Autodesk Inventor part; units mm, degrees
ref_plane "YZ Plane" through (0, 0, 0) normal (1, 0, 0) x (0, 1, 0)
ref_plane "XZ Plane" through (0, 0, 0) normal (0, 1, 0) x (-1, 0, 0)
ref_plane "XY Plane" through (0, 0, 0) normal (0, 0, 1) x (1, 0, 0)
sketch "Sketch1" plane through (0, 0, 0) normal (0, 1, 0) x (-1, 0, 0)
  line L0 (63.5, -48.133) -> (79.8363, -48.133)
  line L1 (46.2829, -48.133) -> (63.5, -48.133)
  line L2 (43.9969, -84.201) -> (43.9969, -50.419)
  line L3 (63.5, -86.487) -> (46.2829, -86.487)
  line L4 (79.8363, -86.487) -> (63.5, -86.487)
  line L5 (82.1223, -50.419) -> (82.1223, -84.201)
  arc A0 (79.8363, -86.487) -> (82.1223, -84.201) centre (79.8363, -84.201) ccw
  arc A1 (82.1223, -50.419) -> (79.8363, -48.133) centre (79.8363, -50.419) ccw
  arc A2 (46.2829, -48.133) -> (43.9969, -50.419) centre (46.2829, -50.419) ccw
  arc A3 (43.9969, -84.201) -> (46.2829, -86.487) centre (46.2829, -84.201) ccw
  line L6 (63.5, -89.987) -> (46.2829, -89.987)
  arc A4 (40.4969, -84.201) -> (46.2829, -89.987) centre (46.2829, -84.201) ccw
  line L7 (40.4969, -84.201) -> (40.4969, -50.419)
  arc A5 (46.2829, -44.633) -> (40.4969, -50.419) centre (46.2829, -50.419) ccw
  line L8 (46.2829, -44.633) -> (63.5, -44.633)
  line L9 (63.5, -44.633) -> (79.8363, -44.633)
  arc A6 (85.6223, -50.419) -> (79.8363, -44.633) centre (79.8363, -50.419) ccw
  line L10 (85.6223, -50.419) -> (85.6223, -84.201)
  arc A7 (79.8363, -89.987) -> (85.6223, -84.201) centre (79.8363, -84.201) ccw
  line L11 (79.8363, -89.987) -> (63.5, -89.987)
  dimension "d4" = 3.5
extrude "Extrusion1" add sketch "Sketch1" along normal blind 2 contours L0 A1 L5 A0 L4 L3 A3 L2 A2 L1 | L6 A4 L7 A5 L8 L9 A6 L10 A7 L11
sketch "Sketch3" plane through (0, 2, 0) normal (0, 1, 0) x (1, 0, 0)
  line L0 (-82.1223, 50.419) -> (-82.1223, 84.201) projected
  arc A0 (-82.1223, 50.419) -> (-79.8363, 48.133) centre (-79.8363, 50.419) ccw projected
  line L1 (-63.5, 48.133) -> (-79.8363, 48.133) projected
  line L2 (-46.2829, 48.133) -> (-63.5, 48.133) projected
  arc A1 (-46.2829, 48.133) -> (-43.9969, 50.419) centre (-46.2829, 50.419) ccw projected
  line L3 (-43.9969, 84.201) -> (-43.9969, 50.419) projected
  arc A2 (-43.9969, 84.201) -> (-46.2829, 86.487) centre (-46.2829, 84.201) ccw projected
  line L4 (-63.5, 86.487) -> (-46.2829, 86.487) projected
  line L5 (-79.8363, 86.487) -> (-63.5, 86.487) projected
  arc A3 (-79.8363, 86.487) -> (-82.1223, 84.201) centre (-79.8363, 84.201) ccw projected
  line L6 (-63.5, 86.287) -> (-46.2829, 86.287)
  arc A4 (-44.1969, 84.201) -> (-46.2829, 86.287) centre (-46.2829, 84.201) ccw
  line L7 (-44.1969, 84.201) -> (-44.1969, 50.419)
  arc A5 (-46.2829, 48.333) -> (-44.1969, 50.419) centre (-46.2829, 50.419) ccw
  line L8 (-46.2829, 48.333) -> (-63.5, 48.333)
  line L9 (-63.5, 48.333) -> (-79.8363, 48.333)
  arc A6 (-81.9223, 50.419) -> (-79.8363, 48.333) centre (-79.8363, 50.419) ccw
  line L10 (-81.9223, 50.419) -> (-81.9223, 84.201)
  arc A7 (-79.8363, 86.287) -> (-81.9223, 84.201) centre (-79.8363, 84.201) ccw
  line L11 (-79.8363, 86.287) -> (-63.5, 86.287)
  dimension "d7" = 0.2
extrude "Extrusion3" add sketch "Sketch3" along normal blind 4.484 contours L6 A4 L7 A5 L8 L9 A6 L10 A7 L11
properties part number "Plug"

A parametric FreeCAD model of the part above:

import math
import FreeCAD as App
import Part
import Sketcher
Q = App.Units.Quantity

doc = App.newDocument("Part")
body = doc.addObject("PartDesign::Body", "Body")

# Sketch on XZ plane
sketch1 = doc.addObject("Sketcher::SketchObject", "Sketch")
body.addObject(sketch1)
sketch1.AttachmentSupport = (doc.XZ_Plane, [""])
sketch1.MapMode = "FlatFace"
sketch1.addGeometry([
    Part.LineSegment(App.Vector(-46, -90, 0), App.Vector(-80, -90, 0)),  # 0
    Part.ArcOfCircle(Part.Circle(App.Vector(-80, -84, 0), App.Vector(0, 0, 1), 6), math.radians(180), math.radians(270)),  # 1
    Part.LineSegment(App.Vector(-86, -84, 0), App.Vector(-86, -50, 0)),  # 2
    Part.ArcOfCircle(Part.Circle(App.Vector(-80, -50, 0), App.Vector(0, 0, 1), 6), math.radians(90), math.radians(180)),  # 3
    Part.LineSegment(App.Vector(-80, -45, 0), App.Vector(-46, -45, 0)),  # 4
    Part.ArcOfCircle(Part.Circle(App.Vector(-46, -50, 0), App.Vector(0, 0, 1), 6), math.radians(0), math.radians(90)),  # 5
    Part.LineSegment(App.Vector(-40, -50, 0), App.Vector(-40, -84, 0)),  # 6
    Part.ArcOfCircle(Part.Circle(App.Vector(-46, -84, 0), App.Vector(0, 0, 1), 6), math.radians(-90), math.radians(0)),  # 7
], False)
sketch1.addConstraint([
    Sketcher.Constraint("Tangent", 0, 2, 1, 2),
    Sketcher.Constraint("Tangent", 1, 1, 2, 1),
    Sketcher.Constraint("Tangent", 2, 2, 3, 2),
    Sketcher.Constraint("Tangent", 3, 1, 4, 1),
    Sketcher.Constraint("Tangent", 4, 2, 5, 2),
    Sketcher.Constraint("Tangent", 5, 1, 6, 1),
    Sketcher.Constraint("Tangent", 6, 2, 7, 2),
    Sketcher.Constraint("Tangent", 7, 1, 0, 1),
    Sketcher.Constraint("Horizontal", 0),
    Sketcher.Constraint("Vertical", 2),
    Sketcher.Constraint("Horizontal", 4),
    Sketcher.Constraint("Vertical", 6),
    Sketcher.Constraint("Equal", 1, 3),
    Sketcher.Constraint("Equal", 3, 5),
    Sketcher.Constraint("Equal", 5, 7),
    Sketcher.Constraint("DistanceY", 2, 1, 2, 2, Q("1.33 in")),
    Sketcher.Constraint("Radius", 1, Q("0.2278 in")),
    Sketcher.Constraint("DistanceX", 0, 2, 0, 1, Q("1.321 in")),
    Sketcher.Constraint("DistanceY", 1, 3, -1, 1, Q("3.315 in")),
    Sketcher.Constraint("DistanceX", 1, 3, -1, 1, 79.8363),
])
pad1 = doc.addObject("PartDesign::Pad", "Pad")
body.addObject(pad1)
pad1.Profile = sketch1
pad1.Length = 2
pad1.Reversed = True

# Sketch on XZ plane
sketch2 = doc.addObject("Sketcher::SketchObject", "Sketch001")
body.addObject(sketch2)
sketch2.AttachmentSupport = (doc.XZ_Plane, [""])
sketch2.MapMode = "FlatFace"
sketch2.AttachmentOffset = App.Placement(App.Vector(0, 0, -2), App.Rotation())
sketch2.addGeometry([
    Part.LineSegment(App.Vector(-46.3, -86.3, 0), App.Vector(-79.8, -86.3, 0)),  # 0
    Part.ArcOfCircle(Part.Circle(App.Vector(-79.8, -84.2, 0), App.Vector(0, 0, 1), 2.1), math.radians(180), math.radians(270)),  # 1
    Part.LineSegment(App.Vector(-81.9, -84.2, 0), App.Vector(-81.9, -50.4, 0)),  # 2
    Part.ArcOfCircle(Part.Circle(App.Vector(-79.8, -50.4, 0), App.Vector(0, 0, 1), 2.1), math.radians(90), math.radians(180)),  # 3
    Part.LineSegment(App.Vector(-79.8, -48.3, 0), App.Vector(-46.3, -48.3, 0)),  # 4
    Part.ArcOfCircle(Part.Circle(App.Vector(-46.3, -50.4, 0), App.Vector(0, 0, 1), 2.1), math.radians(0), math.radians(90)),  # 5
    Part.LineSegment(App.Vector(-44.2, -50.4, 0), App.Vector(-44.2, -84.2, 0)),  # 6
    Part.ArcOfCircle(Part.Circle(App.Vector(-46.3, -84.2, 0), App.Vector(0, 0, 1), 2.1), math.radians(-90), math.radians(0)),  # 7
], False)
sketch2.addConstraint([
    Sketcher.Constraint("Tangent", 0, 2, 1, 2),
    Sketcher.Constraint("Tangent", 1, 1, 2, 1),
    Sketcher.Constraint("Tangent", 2, 2, 3, 2),
    Sketcher.Constraint("Tangent", 3, 1, 4, 1),
    Sketcher.Constraint("Tangent", 4, 2, 5, 2),
    Sketcher.Constraint("Tangent", 5, 1, 6, 1),
    Sketcher.Constraint("Tangent", 6, 2, 7, 2),
    Sketcher.Constraint("Tangent", 7, 1, 0, 1),
    Sketcher.Constraint("Horizontal", 0),
    Sketcher.Constraint("Vertical", 2),
    Sketcher.Constraint("Horizontal", 4),
    Sketcher.Constraint("Vertical", 6),
    Sketcher.Constraint("Equal", 1, 3),
    Sketcher.Constraint("Equal", 3, 5),
    Sketcher.Constraint("Equal", 5, 7),
    Sketcher.Constraint("DistanceY", 2, 1, 2, 2, Q("1.33 in")),
    Sketcher.Constraint("DistanceX", 0, 2, 0, 1, Q("1.321 in")),
    Sketcher.Constraint("Radius", 1, 2.086),
    Sketcher.Constraint("DistanceY", 1, 3, -1, 1, Q("3.315 in")),
    Sketcher.Constraint("DistanceX", 1, 3, -1, 1, 79.8363),
])
pad2 = doc.addObject("PartDesign::Pad", "Pad001")
body.addObject(pad2)
pad2.Profile = sketch2
pad2.Length = 4.484
pad2.Reversed = True

doc.recompute()
